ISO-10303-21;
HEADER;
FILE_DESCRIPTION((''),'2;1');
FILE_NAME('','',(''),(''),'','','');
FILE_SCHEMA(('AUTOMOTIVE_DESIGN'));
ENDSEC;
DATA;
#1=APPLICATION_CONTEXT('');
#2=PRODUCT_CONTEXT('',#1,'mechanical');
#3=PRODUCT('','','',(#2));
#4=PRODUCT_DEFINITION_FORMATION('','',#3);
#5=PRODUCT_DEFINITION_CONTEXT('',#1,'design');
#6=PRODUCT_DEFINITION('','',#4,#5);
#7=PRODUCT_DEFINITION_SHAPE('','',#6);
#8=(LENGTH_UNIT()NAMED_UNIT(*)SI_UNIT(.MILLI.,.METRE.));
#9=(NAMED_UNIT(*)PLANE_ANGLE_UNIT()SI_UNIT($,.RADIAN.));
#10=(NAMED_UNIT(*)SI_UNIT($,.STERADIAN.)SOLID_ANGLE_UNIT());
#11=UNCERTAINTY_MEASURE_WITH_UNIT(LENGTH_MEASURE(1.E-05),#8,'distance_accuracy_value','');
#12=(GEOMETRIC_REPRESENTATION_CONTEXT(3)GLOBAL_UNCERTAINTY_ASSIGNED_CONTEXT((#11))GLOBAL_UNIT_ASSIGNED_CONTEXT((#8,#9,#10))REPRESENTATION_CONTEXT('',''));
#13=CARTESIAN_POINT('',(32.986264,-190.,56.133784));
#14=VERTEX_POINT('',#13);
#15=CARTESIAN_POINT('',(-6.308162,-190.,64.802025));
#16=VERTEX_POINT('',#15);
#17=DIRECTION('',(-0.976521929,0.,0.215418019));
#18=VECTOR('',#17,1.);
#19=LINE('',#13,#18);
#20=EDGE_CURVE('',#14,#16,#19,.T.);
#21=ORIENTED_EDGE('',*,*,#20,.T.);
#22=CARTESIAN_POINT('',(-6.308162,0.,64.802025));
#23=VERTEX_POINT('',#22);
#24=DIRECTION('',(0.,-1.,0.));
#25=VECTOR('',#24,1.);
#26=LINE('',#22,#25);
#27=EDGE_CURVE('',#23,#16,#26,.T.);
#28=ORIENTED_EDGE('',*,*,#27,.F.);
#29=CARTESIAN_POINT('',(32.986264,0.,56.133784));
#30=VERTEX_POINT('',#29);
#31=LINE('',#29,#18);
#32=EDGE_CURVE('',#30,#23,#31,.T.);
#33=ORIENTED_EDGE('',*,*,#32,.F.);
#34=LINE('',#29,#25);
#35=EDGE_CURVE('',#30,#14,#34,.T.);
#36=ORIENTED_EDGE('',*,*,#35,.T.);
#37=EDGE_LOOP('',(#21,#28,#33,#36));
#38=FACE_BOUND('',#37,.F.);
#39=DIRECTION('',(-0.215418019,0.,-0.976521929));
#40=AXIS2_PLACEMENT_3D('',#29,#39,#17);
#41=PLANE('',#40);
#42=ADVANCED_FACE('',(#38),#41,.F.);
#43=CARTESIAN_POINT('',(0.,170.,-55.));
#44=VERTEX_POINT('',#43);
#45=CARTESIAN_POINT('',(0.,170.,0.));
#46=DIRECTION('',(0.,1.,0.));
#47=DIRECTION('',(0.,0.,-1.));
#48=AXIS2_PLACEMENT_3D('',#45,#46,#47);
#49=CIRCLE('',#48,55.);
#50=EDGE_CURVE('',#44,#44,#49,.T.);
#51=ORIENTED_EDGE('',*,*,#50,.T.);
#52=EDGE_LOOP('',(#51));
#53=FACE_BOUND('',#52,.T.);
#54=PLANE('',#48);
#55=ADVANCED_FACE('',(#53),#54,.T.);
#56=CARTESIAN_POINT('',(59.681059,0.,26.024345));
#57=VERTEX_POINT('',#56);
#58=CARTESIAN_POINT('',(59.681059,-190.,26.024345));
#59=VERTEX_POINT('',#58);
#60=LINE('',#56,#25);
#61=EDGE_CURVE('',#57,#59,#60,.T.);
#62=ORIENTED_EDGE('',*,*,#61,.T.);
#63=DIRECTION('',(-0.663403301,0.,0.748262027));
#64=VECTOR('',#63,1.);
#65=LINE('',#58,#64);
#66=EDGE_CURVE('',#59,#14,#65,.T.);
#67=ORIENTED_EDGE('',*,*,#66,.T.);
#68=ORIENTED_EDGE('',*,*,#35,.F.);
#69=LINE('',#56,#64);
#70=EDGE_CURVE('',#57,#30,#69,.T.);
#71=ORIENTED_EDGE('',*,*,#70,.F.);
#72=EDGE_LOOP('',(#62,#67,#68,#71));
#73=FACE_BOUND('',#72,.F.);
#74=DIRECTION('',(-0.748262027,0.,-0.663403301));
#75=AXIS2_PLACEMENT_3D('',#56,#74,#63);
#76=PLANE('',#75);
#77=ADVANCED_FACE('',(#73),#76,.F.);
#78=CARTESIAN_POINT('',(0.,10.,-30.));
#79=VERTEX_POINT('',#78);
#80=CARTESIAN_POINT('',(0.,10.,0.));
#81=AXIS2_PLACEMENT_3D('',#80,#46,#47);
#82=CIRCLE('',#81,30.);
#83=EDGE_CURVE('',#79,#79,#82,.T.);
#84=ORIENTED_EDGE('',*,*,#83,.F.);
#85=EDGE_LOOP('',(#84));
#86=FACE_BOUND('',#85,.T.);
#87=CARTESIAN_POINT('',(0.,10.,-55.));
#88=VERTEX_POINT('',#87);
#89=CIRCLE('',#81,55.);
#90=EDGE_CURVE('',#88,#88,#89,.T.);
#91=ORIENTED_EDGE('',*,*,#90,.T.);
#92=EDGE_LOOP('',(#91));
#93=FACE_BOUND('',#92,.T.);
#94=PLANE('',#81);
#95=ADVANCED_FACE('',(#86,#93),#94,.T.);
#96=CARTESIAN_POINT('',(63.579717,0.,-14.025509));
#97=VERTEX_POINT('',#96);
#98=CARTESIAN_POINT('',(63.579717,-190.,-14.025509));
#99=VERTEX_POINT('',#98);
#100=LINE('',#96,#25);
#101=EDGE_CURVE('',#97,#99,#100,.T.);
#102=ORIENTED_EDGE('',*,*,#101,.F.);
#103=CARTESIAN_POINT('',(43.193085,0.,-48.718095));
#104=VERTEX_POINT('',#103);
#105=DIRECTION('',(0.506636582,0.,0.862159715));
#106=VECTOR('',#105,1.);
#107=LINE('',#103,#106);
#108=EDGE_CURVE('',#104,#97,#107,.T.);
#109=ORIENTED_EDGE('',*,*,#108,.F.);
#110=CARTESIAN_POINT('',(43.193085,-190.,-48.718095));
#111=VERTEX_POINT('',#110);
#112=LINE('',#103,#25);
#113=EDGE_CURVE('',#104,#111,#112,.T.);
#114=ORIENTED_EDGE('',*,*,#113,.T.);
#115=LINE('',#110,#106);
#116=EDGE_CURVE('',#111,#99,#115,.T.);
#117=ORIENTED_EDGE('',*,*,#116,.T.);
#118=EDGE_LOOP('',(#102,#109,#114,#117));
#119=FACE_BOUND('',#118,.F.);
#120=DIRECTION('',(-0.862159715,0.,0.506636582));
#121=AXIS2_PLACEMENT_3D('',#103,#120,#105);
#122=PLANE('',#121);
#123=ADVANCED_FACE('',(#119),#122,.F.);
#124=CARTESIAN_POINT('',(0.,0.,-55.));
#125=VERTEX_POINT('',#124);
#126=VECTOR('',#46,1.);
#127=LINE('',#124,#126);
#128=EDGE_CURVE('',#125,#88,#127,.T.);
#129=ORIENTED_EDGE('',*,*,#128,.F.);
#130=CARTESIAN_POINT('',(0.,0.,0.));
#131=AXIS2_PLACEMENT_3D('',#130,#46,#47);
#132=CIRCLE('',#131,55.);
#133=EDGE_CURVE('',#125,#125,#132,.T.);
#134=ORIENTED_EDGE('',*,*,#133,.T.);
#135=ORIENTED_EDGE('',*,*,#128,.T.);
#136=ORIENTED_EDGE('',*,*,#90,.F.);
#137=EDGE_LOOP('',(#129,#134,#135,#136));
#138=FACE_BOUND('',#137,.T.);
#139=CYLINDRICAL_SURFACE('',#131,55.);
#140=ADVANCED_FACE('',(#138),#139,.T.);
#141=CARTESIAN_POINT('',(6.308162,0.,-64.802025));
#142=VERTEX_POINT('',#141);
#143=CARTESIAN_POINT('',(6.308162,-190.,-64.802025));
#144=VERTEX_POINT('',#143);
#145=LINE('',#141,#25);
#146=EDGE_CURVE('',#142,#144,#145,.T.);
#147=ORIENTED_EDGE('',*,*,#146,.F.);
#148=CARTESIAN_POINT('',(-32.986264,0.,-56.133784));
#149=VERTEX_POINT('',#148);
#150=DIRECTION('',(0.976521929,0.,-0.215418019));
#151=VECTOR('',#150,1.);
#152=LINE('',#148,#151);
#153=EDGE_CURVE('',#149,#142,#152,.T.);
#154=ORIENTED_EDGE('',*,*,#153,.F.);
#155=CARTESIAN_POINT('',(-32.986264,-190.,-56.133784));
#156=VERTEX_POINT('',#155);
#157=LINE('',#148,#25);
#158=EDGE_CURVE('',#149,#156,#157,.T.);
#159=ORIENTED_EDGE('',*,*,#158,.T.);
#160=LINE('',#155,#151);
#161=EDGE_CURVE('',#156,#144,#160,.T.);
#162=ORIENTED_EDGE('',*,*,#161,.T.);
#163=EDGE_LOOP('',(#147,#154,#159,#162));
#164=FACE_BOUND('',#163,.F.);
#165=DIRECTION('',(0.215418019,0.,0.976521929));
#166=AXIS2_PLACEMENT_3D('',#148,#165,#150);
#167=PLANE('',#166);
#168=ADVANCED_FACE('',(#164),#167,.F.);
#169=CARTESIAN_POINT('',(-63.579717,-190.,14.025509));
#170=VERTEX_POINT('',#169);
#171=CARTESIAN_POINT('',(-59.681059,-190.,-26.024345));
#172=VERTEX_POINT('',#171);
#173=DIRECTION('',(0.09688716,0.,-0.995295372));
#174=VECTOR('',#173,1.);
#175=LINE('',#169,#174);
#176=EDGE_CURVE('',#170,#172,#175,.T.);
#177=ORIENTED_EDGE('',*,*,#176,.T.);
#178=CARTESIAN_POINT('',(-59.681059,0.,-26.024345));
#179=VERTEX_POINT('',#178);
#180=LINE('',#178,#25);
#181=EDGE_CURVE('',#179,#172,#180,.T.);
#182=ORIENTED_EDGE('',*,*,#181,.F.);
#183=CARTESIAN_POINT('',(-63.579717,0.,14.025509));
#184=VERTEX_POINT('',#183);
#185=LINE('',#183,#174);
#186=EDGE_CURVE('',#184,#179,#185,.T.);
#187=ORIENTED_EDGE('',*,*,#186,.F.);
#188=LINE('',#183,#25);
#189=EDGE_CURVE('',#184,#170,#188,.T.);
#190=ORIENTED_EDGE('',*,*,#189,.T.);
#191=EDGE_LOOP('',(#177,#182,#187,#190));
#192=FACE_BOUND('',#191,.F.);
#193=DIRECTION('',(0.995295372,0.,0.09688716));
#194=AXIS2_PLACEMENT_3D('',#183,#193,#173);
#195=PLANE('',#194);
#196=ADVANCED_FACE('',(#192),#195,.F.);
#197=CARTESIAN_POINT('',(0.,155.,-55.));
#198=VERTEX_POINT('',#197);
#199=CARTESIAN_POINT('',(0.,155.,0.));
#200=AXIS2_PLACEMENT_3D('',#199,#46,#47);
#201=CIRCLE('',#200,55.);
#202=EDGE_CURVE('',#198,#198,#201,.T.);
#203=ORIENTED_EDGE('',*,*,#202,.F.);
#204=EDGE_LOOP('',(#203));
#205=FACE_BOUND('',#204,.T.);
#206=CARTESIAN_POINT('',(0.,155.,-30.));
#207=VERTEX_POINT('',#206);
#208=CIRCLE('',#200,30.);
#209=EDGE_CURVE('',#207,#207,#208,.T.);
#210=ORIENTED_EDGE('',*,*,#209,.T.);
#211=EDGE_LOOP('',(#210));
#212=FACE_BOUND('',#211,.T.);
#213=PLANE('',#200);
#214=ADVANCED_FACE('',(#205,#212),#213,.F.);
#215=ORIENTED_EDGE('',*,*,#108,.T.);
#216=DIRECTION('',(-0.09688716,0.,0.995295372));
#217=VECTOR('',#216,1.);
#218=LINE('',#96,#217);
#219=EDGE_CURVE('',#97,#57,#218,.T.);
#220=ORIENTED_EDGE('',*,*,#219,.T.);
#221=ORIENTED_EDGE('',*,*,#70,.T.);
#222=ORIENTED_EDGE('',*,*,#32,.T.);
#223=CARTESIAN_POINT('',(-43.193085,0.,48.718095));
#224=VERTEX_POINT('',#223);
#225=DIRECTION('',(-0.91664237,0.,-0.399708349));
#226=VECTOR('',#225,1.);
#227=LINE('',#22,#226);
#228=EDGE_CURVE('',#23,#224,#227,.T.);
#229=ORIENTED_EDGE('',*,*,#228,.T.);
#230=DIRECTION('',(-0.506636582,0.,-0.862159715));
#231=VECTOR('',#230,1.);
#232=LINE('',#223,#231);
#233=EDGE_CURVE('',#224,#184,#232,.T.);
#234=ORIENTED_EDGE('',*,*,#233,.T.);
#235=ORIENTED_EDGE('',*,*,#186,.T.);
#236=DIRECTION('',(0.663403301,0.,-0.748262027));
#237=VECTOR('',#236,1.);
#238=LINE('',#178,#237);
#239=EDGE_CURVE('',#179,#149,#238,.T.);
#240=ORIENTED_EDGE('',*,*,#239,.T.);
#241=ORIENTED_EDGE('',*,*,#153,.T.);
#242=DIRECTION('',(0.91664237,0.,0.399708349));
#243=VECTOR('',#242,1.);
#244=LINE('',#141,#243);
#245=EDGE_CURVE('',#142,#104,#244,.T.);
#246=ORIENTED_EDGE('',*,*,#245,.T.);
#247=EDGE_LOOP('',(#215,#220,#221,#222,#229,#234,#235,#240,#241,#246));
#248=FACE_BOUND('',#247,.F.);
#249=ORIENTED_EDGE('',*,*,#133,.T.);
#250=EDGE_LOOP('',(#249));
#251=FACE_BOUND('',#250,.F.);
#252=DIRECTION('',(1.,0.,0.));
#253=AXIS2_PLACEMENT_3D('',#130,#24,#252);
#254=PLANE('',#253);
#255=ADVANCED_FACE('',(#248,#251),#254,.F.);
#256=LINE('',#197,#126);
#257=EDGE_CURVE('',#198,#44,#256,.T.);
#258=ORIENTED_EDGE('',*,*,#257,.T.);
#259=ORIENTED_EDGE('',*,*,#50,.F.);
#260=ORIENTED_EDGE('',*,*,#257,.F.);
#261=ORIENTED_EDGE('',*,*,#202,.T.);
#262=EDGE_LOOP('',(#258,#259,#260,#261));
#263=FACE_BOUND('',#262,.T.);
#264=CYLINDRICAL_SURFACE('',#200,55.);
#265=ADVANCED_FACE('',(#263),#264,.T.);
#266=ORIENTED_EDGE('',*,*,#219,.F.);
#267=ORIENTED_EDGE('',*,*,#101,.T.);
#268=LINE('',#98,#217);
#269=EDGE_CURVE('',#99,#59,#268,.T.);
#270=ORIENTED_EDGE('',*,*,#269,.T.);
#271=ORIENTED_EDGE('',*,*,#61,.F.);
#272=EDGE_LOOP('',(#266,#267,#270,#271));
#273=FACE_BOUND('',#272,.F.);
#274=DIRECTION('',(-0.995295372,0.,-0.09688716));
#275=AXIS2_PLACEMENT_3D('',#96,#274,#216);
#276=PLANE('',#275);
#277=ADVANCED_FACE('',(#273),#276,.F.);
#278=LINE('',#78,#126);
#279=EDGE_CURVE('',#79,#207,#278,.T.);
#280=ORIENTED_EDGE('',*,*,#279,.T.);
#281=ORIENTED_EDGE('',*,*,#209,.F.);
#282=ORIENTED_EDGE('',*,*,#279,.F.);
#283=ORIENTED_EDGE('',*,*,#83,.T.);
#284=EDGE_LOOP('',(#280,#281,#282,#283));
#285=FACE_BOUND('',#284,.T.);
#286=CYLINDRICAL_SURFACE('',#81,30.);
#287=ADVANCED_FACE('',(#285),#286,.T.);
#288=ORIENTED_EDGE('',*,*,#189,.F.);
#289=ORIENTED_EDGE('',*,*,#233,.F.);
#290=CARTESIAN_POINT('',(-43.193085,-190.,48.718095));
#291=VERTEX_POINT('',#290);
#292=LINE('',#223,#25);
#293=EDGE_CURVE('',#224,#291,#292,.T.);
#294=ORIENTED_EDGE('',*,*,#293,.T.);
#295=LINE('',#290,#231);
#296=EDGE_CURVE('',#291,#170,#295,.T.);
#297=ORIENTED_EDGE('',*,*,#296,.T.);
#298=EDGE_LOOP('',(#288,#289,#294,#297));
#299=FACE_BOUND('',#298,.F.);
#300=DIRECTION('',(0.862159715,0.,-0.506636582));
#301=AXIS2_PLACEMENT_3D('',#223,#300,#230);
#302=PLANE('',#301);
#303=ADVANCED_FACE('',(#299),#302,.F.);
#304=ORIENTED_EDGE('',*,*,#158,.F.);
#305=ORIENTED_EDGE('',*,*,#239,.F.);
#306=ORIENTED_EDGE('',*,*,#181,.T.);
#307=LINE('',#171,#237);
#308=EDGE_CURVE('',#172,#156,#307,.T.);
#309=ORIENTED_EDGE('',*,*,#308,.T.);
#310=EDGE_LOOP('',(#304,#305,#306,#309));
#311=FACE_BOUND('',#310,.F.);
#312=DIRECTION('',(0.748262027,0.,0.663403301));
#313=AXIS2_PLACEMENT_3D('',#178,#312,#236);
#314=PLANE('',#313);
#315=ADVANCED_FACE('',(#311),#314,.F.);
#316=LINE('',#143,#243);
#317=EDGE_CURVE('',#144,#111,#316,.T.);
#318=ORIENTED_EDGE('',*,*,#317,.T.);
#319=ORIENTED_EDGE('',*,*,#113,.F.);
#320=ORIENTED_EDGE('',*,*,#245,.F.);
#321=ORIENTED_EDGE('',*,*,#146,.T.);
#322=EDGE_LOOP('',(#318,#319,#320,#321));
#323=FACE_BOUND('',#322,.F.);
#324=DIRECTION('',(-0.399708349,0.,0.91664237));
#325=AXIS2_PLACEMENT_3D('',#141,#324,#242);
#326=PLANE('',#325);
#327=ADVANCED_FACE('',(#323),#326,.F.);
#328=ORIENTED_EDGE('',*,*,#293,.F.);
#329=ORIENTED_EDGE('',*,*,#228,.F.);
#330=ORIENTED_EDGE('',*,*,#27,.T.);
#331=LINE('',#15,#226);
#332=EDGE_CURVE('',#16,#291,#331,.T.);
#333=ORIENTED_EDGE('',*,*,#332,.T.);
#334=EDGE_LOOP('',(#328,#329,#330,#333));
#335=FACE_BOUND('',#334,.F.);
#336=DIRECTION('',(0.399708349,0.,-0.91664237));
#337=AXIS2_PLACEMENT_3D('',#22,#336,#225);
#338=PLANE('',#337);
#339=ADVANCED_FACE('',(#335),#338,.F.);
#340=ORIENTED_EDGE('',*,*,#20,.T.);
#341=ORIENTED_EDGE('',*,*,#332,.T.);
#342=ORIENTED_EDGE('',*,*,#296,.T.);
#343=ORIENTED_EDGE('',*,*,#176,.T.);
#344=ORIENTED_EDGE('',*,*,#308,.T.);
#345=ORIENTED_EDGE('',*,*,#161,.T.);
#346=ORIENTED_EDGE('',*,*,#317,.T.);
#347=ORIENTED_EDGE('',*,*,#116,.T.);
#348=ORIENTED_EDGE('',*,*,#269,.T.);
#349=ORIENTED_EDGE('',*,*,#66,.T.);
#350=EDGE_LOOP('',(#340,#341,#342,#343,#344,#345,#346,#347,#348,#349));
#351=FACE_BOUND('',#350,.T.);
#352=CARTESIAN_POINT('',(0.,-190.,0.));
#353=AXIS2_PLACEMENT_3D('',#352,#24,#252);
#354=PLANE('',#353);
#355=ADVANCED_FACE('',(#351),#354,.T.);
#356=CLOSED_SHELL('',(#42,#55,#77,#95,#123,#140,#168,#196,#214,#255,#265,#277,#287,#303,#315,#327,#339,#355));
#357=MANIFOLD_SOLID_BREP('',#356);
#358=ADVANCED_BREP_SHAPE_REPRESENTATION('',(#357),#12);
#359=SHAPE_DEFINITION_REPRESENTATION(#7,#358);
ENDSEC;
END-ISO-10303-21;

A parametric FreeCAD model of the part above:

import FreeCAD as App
import Part
import Sketcher

V = App.Vector
Q = App.Units.Quantity

doc = App.newDocument("Part")
body = doc.addObject("PartDesign::Body", "Body")

# Sketch on YZ plane
sketch1 = body.newObject("Sketcher::SketchObject", "Sketch")
sketch1.AttachmentSupport = (doc.getObject("YZ_Plane"), [""])
sketch1.MapMode = "FlatFace"
sketch1.addGeometry(Part.LineSegment(V(0, 0, 0), V(0, -55, 0)), False)
sketch1.addGeometry(Part.LineSegment(V(0, -55, 0), V(10, -55, 0)), False)
sketch1.addGeometry(Part.LineSegment(V(10, -55, 0), V(10, -30, 0)), False)
sketch1.addGeometry(Part.LineSegment(V(10, -30, 0), V(155, -30, 0)), False)
sketch1.addGeometry(Part.LineSegment(V(155, -30, 0), V(155, -55, 0)), False)
sketch1.addGeometry(Part.LineSegment(V(155, -55, 0), V(170, -55, 0)), False)
sketch1.addGeometry(Part.LineSegment(V(170, -55, 0), V(170, 0, 0)), False)
sketch1.addGeometry(Part.LineSegment(V(170, 0, 0), V(0, 0, 0)), False)
sketch1.addConstraint(Sketcher.Constraint("Coincident", 0, 2, 1, 1))
sketch1.addConstraint(Sketcher.Constraint("Coincident", 1, 2, 2, 1))
sketch1.addConstraint(Sketcher.Constraint("Coincident", 2, 2, 3, 1))
sketch1.addConstraint(Sketcher.Constraint("Coincident", 3, 2, 4, 1))
sketch1.addConstraint(Sketcher.Constraint("Coincident", 4, 2, 5, 1))
sketch1.addConstraint(Sketcher.Constraint("Coincident", 5, 2, 6, 1))
sketch1.addConstraint(Sketcher.Constraint("Coincident", 6, 2, 7, 1))
sketch1.addConstraint(Sketcher.Constraint("Coincident", 7, 2, 0, 1))
sketch1.addConstraint(Sketcher.Constraint("Vertical", 0))
sketch1.addConstraint(Sketcher.Constraint("Horizontal", 1))
sketch1.addConstraint(Sketcher.Constraint("Vertical", 2))
sketch1.addConstraint(Sketcher.Constraint("Horizontal", 3))
sketch1.addConstraint(Sketcher.Constraint("Vertical", 4))
sketch1.addConstraint(Sketcher.Constraint("Horizontal", 5))
sketch1.addConstraint(Sketcher.Constraint("Vertical", 6))
sketch1.addConstraint(Sketcher.Constraint("Horizontal", 7))
sketch1.addConstraint(Sketcher.Constraint("Coincident", 7, 2, -1, 1))
sketch1.addConstraint(Sketcher.Constraint("Horizontal", 1, 2, 4, 2))
sketch1.addConstraint(Sketcher.Constraint("DistanceX", 1, 1, 1, 2, Q("10 mm")))
sketch1.addConstraint(Sketcher.Constraint("DistanceX", 3, 1, 3, 2, Q("145 mm")))
sketch1.addConstraint(Sketcher.Constraint("DistanceX", 5, 1, 5, 2, Q("15 mm")))
sketch1.addConstraint(Sketcher.Constraint("DistanceY", 0, 2, 0, 1, Q("55 mm")))
sketch1.addConstraint(Sketcher.Constraint("DistanceY", 2, 1, 2, 2, Q("25 mm")))
revolution = body.newObject("PartDesign::Revolution", "Revolution")
revolution.Profile = sketch1
revolution.ReferenceAxis = (sketch1, ["H_Axis"])
revolution.Angle = 360

# Sketch on XZ plane
sketch2 = body.newObject("Sketcher::SketchObject", "Sketch001")
sketch2.AttachmentSupport = (doc.getObject("XZ_Plane"), [""])
sketch2.MapMode = "FlatFace"
sketch2.addGeometry(Part.LineSegment(V(43, -49, 0), V(64, -14, 0)), False)
sketch2.addGeometry(Part.LineSegment(V(64, -14, 0), V(60, 26, 0)), False)
sketch2.addGeometry(Part.LineSegment(V(60, 26, 0), V(33, 56, 0)), False)
sketch2.addGeometry(Part.LineSegment(V(33, 56, 0), V(-6, 65, 0)), False)
sketch2.addGeometry(Part.LineSegment(V(-6, 65, 0), V(-43, 49, 0)), False)
sketch2.addGeometry(Part.LineSegment(V(-43, 49, 0), V(-64, 14, 0)), False)
sketch2.addGeometry(Part.LineSegment(V(-64, 14, 0), V(-60, -26, 0)), False)
sketch2.addGeometry(Part.LineSegment(V(-60, -26, 0), V(-33, -56, 0)), False)
sketch2.addGeometry(Part.LineSegment(V(-33, -56, 0), V(6, -65, 0)), False)
sketch2.addGeometry(Part.LineSegment(V(6, -65, 0), V(43, -49, 0)), False)
sketch2.addConstraint(Sketcher.Constraint("Coincident", 0, 2, 1, 1))
sketch2.addConstraint(Sketcher.Constraint("Coincident", 1, 2, 2, 1))
sketch2.addConstraint(Sketcher.Constraint("Coincident", 2, 2, 3, 1))
sketch2.addConstraint(Sketcher.Constraint("Coincident", 3, 2, 4, 1))
sketch2.addConstraint(Sketcher.Constraint("Coincident", 4, 2, 5, 1))
sketch2.addConstraint(Sketcher.Constraint("Coincident", 5, 2, 6, 1))
sketch2.addConstraint(Sketcher.Constraint("Coincident", 6, 2, 7, 1))
sketch2.addConstraint(Sketcher.Constraint("Coincident", 7, 2, 8, 1))
sketch2.addConstraint(Sketcher.Constraint("Coincident", 8, 2, 9, 1))
sketch2.addConstraint(Sketcher.Constraint("Coincident", 9, 2, 0, 1))
sketch2.addConstraint(Sketcher.Constraint("Symmetric", 0, 2, 5, 2, -1, 1))
sketch2.addConstraint(Sketcher.Constraint("Symmetric", 1, 2, 6, 2, -1, 1))
sketch2.addConstraint(Sketcher.Constraint("Symmetric", 2, 2, 7, 2, -1, 1))
sketch2.addConstraint(Sketcher.Constraint("Symmetric", 3, 2, 8, 2, -1, 1))
sketch2.addConstraint(Sketcher.Constraint("Symmetric", 4, 2, 9, 2, -1, 1))
sketch2.addConstraint(Sketcher.Constraint("Equal", 0, 1))
sketch2.addConstraint(Sketcher.Constraint("Equal", 1, 2))
sketch2.addConstraint(Sketcher.Constraint("Equal", 2, 3))
sketch2.addConstraint(Sketcher.Constraint("Equal", 3, 4))
sketch2.addConstraint(Sketcher.Constraint("DistanceX", 4, 2, 0, 2, Q("106.772802 mm")))
sketch2.addConstraint(Sketcher.Constraint("DistanceY", 0, 2, -1, 1, Q("14.025509 mm")))
sketch2.addConstraint(Sketcher.Constraint("DistanceX", -1, 1, 1, 2, Q("59.681059 mm")))
sketch2.addConstraint(Sketcher.Constraint("DistanceX", 3, 2, -1, 1, Q("6.308162 mm")))
sketch2.addConstraint(Sketcher.Constraint("DistanceX", 1, 2, 0, 2, Q("3.898658 mm")))
sketch2.addConstraint(Sketcher.Constraint("DistanceY", 1, 2, 2, 2, Q("30.109439 mm")))
pad1 = body.newObject("PartDesign::Pad", "Pad")
pad1.Profile = sketch2
pad1.Length = 190

doc.recompute()
